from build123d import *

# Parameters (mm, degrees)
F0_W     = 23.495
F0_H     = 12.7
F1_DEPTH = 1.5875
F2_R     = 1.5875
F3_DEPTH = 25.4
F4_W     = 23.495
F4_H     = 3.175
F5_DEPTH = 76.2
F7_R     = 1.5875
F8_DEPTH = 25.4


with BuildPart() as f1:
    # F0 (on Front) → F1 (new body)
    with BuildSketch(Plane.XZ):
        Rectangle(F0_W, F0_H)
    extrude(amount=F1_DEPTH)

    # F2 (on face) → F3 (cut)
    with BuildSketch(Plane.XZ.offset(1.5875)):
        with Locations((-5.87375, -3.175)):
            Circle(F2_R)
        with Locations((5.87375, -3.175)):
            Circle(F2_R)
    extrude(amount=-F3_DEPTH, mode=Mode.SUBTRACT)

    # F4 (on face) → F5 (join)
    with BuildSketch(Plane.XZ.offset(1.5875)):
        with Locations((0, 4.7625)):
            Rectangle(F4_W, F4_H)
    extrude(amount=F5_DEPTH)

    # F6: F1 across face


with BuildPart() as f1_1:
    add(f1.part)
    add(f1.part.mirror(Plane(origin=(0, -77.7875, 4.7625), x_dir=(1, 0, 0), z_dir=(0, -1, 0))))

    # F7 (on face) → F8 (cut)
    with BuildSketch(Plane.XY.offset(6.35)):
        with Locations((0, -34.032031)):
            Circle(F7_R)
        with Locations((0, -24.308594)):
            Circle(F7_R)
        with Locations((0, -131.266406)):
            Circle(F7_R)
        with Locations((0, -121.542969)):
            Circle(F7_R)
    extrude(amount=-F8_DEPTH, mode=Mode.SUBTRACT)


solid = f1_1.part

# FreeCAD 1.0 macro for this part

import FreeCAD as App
import Part
import Sketcher

V = App.Vector
Q = App.Units.Quantity


def add_polygon(sketch, points):
    """Adds a closed chain of lines whose ends are joined by coincident constraints."""
    first, n = sketch.GeometryCount, len(points)
    for a, b in zip(points, points[1:] + points[:1]):
        sketch.addGeometry(Part.LineSegment(App.Vector(*a, 0), App.Vector(*b, 0)), False)
    for i in range(n):
        sketch.addConstraint(Sketcher.Constraint("Coincident", first + i, 2, first + (i + 1) % n, 1))

doc = App.newDocument("Part")
params = doc.addObject("Spreadsheet::Sheet", "Params")
for row, (alias, value) in enumerate([
    ("sketch1_height", "0.5 in"),
    ("sketch1_width", "0.925 in"),
    ("pad1_length", "0.0625 in"),
    ("sketch2_diameter", "0.125 in"),
    ("pocket1_length", "1 in"),
    ("sketch3_width", "0.925 in"),
    ("sketch3_height", "0.125 in"),
    ("pad2_length", "3 in"),
    ("sketch4_diameter", "0.125 in"),
    ("pocket2_length", "1 in"),
], start=1):
    params.set(f"A{row}", alias)
    params.set(f"B{row}", "=" + value)
    params.setAlias(f"B{row}", alias)

body = doc.addObject("PartDesign::Body", "Body")

sketch1 = body.newObject("Sketcher::SketchObject", "Sketch")
sketch1.AttachmentSupport = (doc.getObject("XZ_Plane"), [""])
sketch1.MapMode = "FlatFace"
add_polygon(sketch1, [(-11.7475, 6.35), (-11.7475, -6.35), (11.7475, -6.35), (11.7475, 6.35)])
sketch1.addConstraint([
    Sketcher.Constraint("Vertical", 0),
    Sketcher.Constraint("Horizontal", 1),
    Sketcher.Constraint("Vertical", 2),
    Sketcher.Constraint("Horizontal", 3),
    Sketcher.Constraint("Symmetric", 0, 2, 2, 2, -1, 1),
    Sketcher.Constraint("DistanceY", 0, 2, 0, 1, Q("0.5 in")),
    Sketcher.Constraint("DistanceX", 1, 1, 1, 2, Q("0.925 in")),
])
sketch1.setExpression("Constraints[9]", "Params.sketch1_height")
sketch1.setExpression("Constraints[10]", "Params.sketch1_width")
pad1 = body.newObject("PartDesign::Pad", "Pad")
pad1.Profile = sketch1
pad1.setExpression("Length", "Params.pad1_length")

sketch2 = body.newObject("Sketcher::SketchObject", "Sketch001")
sketch2.AttachmentSupport = (doc.getObject("XZ_Plane"), [""])
sketch2.MapMode = "FlatFace"
sketch2.AttachmentOffset = App.Placement(V(0, 0, 0.0625 * 25.4), App.Rotation())
sketch2.addGeometry([
    Part.Circle(V(-5.87375, -3.175, 0), V(0, 0, 1), 1.5875),
    Part.Circle(V(5.87375, -3.175, 0), V(0, 0, 1), 1.5875),
], False)
sketch2.addConstraint([
    Sketcher.Constraint("Equal", 0, 1),
    Sketcher.Constraint("Symmetric", 0, 3, 1, 3, -2),
    Sketcher.Constraint("Diameter", 0, Q("0.125 in")),
    Sketcher.Constraint("DistanceY", 0, 3, -1, 1, Q("0.125 in")),
    Sketcher.Constraint("DistanceX", 0, 3, 1, 3, Q("0.4625 in")),
])
sketch2.setExpression("Constraints[2]", "Params.sketch2_diameter")
pocket1 = body.newObject("PartDesign::Pocket", "Pocket")
pocket1.Profile = sketch2
pocket1.setExpression("Length", "Params.pocket1_length")

sketch3 = body.newObject("Sketcher::SketchObject", "Sketch002")
sketch3.AttachmentSupport = (doc.getObject("XZ_Plane"), [""])
sketch3.MapMode = "FlatFace"
sketch3.AttachmentOffset = App.Placement(V(0, 0, 0.0625 * 25.4), App.Rotation())
add_polygon(sketch3, [(-11.7475, 6.35), (-11.7475, 3.175), (11.7475, 3.175), (11.7475, 6.35)])
sketch3.addConstraint([
    Sketcher.Constraint("Vertical", 0),
    Sketcher.Constraint("Horizontal", 1),
    Sketcher.Constraint("Vertical", 2),
    Sketcher.Constraint("Horizontal", 3),
    Sketcher.Constraint("DistanceX", 1, 1, 1, 2, Q("0.925 in")),
    Sketcher.Constraint("DistanceY", 0, 2, 0, 1, Q("0.125 in")),
    Sketcher.Constraint("DistanceY", -1, 1, 2, 2, Q("0.25 in")),
    Sketcher.Constraint("DistanceX", 0, 2, -1, 1, Q("0.4625 in")),
])
sketch3.setExpression("Constraints[8]", "Params.sketch3_width")
sketch3.setExpression("Constraints[9]", "Params.sketch3_height")
pad2 = body.newObject("PartDesign::Pad", "Pad001")
pad2.Profile = sketch3
pad2.setExpression("Length", "Params.pad2_length")
body2 = doc.addObject("PartDesign::Body", "Body001")
doc.recompute()

body2.BaseFeature = body
doc.recompute()

mirroring = doc.addObject("Part::Mirroring", "Mirroring")
mirroring.Source = body
mirroring.Base = V(0, -77.7875, 4.7625)
mirroring.Normal = V(0, -1, 0)
body3 = doc.addObject("PartDesign::Body", "Body002")
body3.BaseFeature = mirroring
boolean = body2.newObject("PartDesign::Boolean", "Boolean")
boolean.Type = "Fuse"
boolean.addObjects([body3])
doc.recompute()

sketch4 = body2.newObject("Sketcher::SketchObject", "Sketch003")
sketch4.AttachmentSupport = (doc.getObject("XY_Plane001"), [""])
sketch4.MapMode = "FlatFace"
sketch4.AttachmentOffset = App.Placement(V(0, 0, 0.25 * 25.4), App.Rotation())
sketch4.addGeometry([
    Part.Circle(V(0, -34.032031, 0), V(0, 0, 1), 1.5875),
    Part.Circle(V(0, -24.308594, 0), V(0, 0, 1), 1.5875),
    Part.Circle(V(0, -131.266406, 0), V(0, 0, 1), 1.5875),
    Part.Circle(V(0, -121.542969, 0), V(0, 0, 1), 1.5875),
], False)
sketch4.addConstraint([
    Sketcher.Constraint("Equal", 0, 1),
    Sketcher.Constraint("Equal", 1, 2),
    Sketcher.Constraint("Equal", 2, 3),
    Sketcher.Constraint("PointOnObject", 0, 3, -2),
    Sketcher.Constraint("PointOnObject", 1, 3, -2),
    Sketcher.Constraint("PointOnObject", 2, 3, -2),
    Sketcher.Constraint("PointOnObject", 3, 3, -2),
    Sketcher.Constraint("Diameter", 0, Q("0.125 in")),
    Sketcher.Constraint("DistanceY", 2, 3, 0, 3, Q("3.828125 in")),
    Sketcher.Constraint("DistanceY", 3, 3, 1, 3, Q("3.828125 in")),
    Sketcher.Constraint("DistanceY", 0, 3, -1, 1, 34.032031),
    Sketcher.Constraint("DistanceY", 3, 3, -1, 1, 121.542969),
])
sketch4.setExpression("Constraints[7]", "Params.sketch4_diameter")
pocket2 = body2.newObject("PartDesign::Pocket", "Pocket001")
pocket2.Profile = sketch4
pocket2.setExpression("Length", "Params.pocket2_length")
mirroring.Visibility = False

doc.recompute()
